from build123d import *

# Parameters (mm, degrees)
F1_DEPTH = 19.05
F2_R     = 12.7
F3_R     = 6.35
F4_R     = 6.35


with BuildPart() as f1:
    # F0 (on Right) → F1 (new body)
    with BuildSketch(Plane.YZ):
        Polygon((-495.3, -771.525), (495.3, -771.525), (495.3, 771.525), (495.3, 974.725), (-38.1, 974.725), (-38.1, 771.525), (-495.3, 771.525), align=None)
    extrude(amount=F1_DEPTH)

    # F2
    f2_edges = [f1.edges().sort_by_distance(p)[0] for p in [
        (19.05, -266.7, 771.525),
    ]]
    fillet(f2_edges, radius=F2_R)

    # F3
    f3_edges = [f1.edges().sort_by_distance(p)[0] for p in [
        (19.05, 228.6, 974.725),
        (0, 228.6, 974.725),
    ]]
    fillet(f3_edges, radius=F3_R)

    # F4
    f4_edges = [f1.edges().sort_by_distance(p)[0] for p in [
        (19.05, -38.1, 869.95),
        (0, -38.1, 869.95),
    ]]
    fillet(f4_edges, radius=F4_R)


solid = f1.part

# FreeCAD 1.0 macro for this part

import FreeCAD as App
import Part
import Sketcher
from FreeCAD import Vector
Q = App.Units.Quantity


def edges_at(feature, points):
    """Names of the edges that pass closest to the given points."""
    edges = feature.Shape.Edges
    near = lambda p: min(range(len(edges)), key=lambda i: edges[i].distToShape(Part.Vertex(*p))[0])
    return sorted({f"Edge{near(p) + 1}" for p in points})


def add_polygon(sketch, points):
    """Adds a closed chain of lines whose ends are joined by coincident constraints."""
    first, n = sketch.GeometryCount, len(points)
    for a, b in zip(points, points[1:] + points[:1]):
        sketch.addGeometry(Part.LineSegment(App.Vector(*a, 0), App.Vector(*b, 0)), False)
    for i in range(n):
        sketch.addConstraint(Sketcher.Constraint("Coincident", first + i, 2, first + (i + 1) % n, 1))

doc = App.newDocument("Part")
body = doc.addObject("PartDesign::Body", "Body")

# Sketch on YZ plane
sketch1 = body.newObject("Sketcher::SketchObject", "Sketch")
sketch1.AttachmentSupport = (doc.getObject("YZ_Plane"), [""])
sketch1.MapMode = "FlatFace"
add_polygon(sketch1, [(-495.3, -771.525), (495.3, -771.525), (495.3, 974.725), (-38.1, 974.725), (-38.1, 771.525), (-495.3, 771.525)])  # lines 0-5
sketch1.addConstraint([
    Sketcher.Constraint("Horizontal", 0),
    Sketcher.Constraint("Vertical", 1),
    Sketcher.Constraint("Horizontal", 2),
    Sketcher.Constraint("Vertical", 3),
    Sketcher.Constraint("Horizontal", 4),
    Sketcher.Constraint("Vertical", 5),
    Sketcher.Constraint("Symmetric", 0, 2, 4, 2, -1, 1),
    Sketcher.Constraint("DistanceX", 0, 1, 0, 2, Q("39 in")),
    Sketcher.Constraint("DistanceX", 2, 2, 2, 1, Q("21 in")),
    Sketcher.Constraint("DistanceY", 3, 2, 3, 1, Q("8 in")),
    Sketcher.Constraint("DistanceY", 1, 1, 1, 2, Q("68.75 in")),
])
pad1 = body.newObject("PartDesign::Pad", "Pad")
pad1.Profile = sketch1
pad1.Length = Q("0.75 in")
doc.recompute()

fillet = body.newObject("PartDesign::Fillet", "Fillet")
fillet.Base = (pad1, edges_at(pad1, [(19.05, -266.7, 771.525)]))
fillet.Radius = Q("0.5 in")
doc.recompute()

fillet2 = body.newObject("PartDesign::Fillet", "Fillet001")
fillet2.Base = (fillet, edges_at(fillet, [(19.05, 228.6, 974.725), (0, 228.6, 974.725)]))
fillet2.Radius = Q("0.25 in")
doc.recompute()

fillet3 = body.newObject("PartDesign::Fillet", "Fillet002")
fillet3.Base = (fillet2, edges_at(fillet2, [(19.05, -38.1, 863.6), (0, -38.1, 869.95)]))
fillet3.Radius = Q("0.25 in")

doc.recompute()
